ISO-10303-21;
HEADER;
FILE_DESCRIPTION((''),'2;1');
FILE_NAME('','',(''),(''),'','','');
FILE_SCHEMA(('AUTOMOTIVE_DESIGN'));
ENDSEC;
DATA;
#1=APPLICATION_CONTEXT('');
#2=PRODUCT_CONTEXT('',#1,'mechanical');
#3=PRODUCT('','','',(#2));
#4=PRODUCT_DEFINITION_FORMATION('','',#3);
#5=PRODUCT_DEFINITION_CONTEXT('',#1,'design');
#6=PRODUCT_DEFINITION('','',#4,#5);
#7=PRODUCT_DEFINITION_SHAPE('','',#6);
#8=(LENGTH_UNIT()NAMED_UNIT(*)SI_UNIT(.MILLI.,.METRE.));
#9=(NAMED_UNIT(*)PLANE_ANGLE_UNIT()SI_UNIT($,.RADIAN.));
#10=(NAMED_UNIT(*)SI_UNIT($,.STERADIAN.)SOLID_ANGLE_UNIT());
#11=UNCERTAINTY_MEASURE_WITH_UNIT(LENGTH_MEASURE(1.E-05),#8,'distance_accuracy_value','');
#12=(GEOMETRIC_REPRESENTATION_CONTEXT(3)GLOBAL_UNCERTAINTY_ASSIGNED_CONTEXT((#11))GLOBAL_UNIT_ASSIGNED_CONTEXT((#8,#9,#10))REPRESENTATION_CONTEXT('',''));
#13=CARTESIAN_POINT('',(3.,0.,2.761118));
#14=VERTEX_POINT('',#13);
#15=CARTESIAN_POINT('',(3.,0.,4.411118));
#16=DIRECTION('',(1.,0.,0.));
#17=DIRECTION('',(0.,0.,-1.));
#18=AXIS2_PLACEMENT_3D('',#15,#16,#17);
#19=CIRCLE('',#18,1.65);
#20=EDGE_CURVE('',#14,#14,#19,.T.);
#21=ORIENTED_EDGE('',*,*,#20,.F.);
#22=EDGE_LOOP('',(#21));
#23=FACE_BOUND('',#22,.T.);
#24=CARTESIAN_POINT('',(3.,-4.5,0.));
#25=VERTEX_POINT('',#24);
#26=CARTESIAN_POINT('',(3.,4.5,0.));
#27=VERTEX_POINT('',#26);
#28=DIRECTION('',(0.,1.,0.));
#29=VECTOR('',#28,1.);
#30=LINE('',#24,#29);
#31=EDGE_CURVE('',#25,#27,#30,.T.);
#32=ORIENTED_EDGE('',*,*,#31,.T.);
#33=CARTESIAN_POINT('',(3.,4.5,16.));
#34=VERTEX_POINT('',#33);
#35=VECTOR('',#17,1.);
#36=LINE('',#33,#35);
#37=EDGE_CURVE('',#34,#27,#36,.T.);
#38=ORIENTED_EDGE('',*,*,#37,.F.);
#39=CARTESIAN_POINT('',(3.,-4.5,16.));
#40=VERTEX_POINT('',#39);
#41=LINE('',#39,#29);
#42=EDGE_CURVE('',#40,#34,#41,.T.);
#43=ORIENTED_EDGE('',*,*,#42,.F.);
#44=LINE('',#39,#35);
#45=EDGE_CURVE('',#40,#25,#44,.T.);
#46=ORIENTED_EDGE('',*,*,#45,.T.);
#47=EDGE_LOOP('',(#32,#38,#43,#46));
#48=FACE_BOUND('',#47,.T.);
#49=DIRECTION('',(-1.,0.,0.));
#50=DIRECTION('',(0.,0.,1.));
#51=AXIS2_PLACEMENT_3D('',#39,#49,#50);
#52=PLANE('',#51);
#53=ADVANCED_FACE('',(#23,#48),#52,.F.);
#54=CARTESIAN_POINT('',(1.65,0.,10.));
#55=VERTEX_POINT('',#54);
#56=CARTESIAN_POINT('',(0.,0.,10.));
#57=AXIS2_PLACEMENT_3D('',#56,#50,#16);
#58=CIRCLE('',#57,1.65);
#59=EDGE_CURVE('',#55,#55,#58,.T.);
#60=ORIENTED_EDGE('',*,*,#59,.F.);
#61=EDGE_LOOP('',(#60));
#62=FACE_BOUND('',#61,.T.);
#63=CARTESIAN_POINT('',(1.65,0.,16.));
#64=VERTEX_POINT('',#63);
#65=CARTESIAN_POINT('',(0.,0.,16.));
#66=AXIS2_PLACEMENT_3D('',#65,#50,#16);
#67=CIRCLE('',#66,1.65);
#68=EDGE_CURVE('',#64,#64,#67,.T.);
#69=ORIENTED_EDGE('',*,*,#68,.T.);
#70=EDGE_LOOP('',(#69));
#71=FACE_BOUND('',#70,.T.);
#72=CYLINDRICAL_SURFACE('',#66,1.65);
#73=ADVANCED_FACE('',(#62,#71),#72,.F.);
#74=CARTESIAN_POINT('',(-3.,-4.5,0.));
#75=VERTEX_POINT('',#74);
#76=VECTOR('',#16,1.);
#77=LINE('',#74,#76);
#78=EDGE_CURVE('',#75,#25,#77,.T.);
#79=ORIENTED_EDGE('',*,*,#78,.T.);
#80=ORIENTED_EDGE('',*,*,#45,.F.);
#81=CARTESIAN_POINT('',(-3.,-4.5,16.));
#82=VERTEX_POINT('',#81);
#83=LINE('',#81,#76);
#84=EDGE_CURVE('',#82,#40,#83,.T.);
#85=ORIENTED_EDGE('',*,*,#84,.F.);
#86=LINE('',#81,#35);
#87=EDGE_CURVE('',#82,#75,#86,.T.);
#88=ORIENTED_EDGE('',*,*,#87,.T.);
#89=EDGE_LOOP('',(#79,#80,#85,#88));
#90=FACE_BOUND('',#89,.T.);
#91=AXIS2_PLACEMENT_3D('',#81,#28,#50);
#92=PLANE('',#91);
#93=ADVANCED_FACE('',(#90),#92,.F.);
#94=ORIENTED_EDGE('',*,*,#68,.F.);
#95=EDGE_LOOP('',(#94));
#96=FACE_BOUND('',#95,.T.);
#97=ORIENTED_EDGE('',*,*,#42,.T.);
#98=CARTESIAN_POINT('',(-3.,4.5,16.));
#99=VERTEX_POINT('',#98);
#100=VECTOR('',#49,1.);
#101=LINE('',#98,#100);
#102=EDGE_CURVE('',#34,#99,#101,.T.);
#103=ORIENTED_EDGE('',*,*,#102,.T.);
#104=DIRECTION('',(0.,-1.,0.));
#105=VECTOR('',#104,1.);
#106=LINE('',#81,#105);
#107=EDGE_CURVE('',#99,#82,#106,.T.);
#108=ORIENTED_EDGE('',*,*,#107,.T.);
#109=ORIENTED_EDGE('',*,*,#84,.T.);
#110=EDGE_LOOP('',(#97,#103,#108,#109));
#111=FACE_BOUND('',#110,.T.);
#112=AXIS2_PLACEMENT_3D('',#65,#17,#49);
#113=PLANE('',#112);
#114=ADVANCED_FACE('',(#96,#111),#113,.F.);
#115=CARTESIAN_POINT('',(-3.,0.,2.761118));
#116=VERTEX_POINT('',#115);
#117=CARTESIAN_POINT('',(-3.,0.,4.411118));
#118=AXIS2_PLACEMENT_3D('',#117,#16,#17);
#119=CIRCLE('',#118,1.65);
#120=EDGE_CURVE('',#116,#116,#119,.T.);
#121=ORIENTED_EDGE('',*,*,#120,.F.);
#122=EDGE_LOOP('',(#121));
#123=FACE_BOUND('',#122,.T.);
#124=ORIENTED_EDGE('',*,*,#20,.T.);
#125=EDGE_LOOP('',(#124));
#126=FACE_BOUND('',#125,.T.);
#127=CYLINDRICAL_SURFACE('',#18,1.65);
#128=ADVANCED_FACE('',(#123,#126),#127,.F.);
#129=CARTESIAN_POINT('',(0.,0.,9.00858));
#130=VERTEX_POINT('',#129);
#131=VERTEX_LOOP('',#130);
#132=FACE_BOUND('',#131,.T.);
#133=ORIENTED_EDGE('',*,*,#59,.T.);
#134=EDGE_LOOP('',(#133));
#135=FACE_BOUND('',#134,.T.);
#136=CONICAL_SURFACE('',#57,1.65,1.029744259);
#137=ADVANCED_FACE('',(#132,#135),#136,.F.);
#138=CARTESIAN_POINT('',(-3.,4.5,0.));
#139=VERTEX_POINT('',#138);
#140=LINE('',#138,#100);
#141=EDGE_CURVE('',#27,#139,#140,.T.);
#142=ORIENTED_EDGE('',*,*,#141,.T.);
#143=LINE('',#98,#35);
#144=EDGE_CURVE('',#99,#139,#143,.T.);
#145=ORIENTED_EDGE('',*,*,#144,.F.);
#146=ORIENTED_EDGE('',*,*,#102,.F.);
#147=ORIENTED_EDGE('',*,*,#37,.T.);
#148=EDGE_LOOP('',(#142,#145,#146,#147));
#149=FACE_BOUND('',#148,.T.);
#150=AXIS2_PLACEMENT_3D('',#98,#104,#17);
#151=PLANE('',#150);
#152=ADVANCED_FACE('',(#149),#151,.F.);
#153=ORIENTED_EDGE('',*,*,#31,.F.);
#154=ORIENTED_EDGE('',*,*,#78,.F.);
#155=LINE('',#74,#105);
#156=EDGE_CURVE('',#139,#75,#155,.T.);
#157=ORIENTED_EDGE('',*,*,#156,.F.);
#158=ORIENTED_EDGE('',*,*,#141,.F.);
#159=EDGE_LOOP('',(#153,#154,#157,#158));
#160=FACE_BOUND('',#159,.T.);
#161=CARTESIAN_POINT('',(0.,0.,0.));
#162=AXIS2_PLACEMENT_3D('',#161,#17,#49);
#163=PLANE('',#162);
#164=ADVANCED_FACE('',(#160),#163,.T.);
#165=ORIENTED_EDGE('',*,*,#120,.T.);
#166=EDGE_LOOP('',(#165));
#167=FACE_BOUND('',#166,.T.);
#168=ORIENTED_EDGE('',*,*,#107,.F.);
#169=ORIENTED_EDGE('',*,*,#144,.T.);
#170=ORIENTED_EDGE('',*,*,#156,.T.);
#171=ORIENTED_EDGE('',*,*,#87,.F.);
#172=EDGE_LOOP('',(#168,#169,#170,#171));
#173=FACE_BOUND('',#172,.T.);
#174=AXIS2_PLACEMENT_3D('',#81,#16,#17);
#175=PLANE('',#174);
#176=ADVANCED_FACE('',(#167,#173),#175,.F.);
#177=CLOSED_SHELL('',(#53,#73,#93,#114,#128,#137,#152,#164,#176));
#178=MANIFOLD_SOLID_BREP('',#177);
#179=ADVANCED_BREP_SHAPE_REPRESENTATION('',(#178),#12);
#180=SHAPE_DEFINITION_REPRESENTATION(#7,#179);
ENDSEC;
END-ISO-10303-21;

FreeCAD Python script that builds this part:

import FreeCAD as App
import Part
import Sketcher
from FreeCAD import Vector
Q = App.Units.Quantity


def add_polygon(sketch, points):
    """Adds a closed chain of lines whose ends are joined by coincident constraints."""
    first, n = sketch.GeometryCount, len(points)
    for a, b in zip(points, points[1:] + points[:1]):
        sketch.addGeometry(Part.LineSegment(App.Vector(*a, 0), App.Vector(*b, 0)), False)
    for i in range(n):
        sketch.addConstraint(Sketcher.Constraint("Coincident", first + i, 2, first + (i + 1) % n, 1))

doc = App.newDocument("Part")
body = doc.addObject("PartDesign::Body", "Body")

# Sketch on XY plane
sketch1 = body.newObject("Sketcher::SketchObject", "Sketch")
sketch1.AttachmentSupport = (doc.getObject("XY_Plane"), [""])
sketch1.MapMode = "FlatFace"
add_polygon(sketch1, [(-3, 4), (-3, -4), (3, -4), (3, 4)])  # lines 0-3
sketch1.addConstraint(Sketcher.Constraint("Vertical", 0))
sketch1.addConstraint(Sketcher.Constraint("Horizontal", 1))
sketch1.addConstraint(Sketcher.Constraint("Vertical", 2))
sketch1.addConstraint(Sketcher.Constraint("Horizontal", 3))
sketch1.addConstraint(Sketcher.Constraint("Symmetric", 0, 2, 2, 2, -1, 1))
sketch1.addConstraint(Sketcher.Constraint("DistanceX", 1, 1, 1, 2, Q("6 mm")))
sketch1.addConstraint(Sketcher.Constraint("DistanceY", 0, 2, 0, 1, Q("9 mm")))
pad1 = body.newObject("PartDesign::Pad", "Pad")
pad1.Profile = sketch1
pad1.Length = 16

# Sketch on XY plane
sketch2 = body.newObject("Sketcher::SketchObject", "Sketch001")
sketch2.AttachmentSupport = (doc.getObject("XY_Plane"), [""])
sketch2.MapMode = "FlatFace"
sketch2.AttachmentOffset = App.Placement(Vector(0, 0, 16), App.Rotation())
sketch2.addGeometry(Part.Circle(Vector(0, 0, 0), Vector(0, 0, 1), 1.6), False)
sketch2.addConstraint(Sketcher.Constraint("Coincident", 0, 3, -1, 1))
sketch2.addConstraint(Sketcher.Constraint("Diameter", 0, Q("3.3 mm")))
doc.recompute()
hole = body.newObject("PartDesign::Hole", "Hole")
hole.Profile = sketch2
hole.ThreadType = "None"
hole.Diameter = 3.3
hole.DepthType = "Dimension"
hole.Depth = 6
hole.DrillPoint = "Angled"
hole.DrillPointAngle = 118

# Sketch on YZ plane
sketch3 = body.newObject("Sketcher::SketchObject", "Sketch002")
sketch3.AttachmentSupport = (doc.getObject("YZ_Plane"), [""])
sketch3.MapMode = "FlatFace"
sketch3.AttachmentOffset = App.Placement(Vector(0, 0, 3), App.Rotation())
sketch3.addGeometry(Part.Circle(Vector(0, 4.4, 0), Vector(0, 0, 1), 1.6), False)
sketch3.addConstraint(Sketcher.Constraint("PointOnObject", 0, 3, -2))
sketch3.addConstraint(Sketcher.Constraint("Diameter", 0, Q("3.3 mm")))
sketch3.addConstraint(Sketcher.Constraint("DistanceY", -1, 1, 0, 3, Q("4.411118 mm")))
doc.recompute()
hole2 = body.newObject("PartDesign::Hole", "Hole001")
hole2.Profile = sketch3
hole2.ThreadType = "None"
hole2.Diameter = 3.3
hole2.DepthType = "ThroughAll"

doc.recompute()
